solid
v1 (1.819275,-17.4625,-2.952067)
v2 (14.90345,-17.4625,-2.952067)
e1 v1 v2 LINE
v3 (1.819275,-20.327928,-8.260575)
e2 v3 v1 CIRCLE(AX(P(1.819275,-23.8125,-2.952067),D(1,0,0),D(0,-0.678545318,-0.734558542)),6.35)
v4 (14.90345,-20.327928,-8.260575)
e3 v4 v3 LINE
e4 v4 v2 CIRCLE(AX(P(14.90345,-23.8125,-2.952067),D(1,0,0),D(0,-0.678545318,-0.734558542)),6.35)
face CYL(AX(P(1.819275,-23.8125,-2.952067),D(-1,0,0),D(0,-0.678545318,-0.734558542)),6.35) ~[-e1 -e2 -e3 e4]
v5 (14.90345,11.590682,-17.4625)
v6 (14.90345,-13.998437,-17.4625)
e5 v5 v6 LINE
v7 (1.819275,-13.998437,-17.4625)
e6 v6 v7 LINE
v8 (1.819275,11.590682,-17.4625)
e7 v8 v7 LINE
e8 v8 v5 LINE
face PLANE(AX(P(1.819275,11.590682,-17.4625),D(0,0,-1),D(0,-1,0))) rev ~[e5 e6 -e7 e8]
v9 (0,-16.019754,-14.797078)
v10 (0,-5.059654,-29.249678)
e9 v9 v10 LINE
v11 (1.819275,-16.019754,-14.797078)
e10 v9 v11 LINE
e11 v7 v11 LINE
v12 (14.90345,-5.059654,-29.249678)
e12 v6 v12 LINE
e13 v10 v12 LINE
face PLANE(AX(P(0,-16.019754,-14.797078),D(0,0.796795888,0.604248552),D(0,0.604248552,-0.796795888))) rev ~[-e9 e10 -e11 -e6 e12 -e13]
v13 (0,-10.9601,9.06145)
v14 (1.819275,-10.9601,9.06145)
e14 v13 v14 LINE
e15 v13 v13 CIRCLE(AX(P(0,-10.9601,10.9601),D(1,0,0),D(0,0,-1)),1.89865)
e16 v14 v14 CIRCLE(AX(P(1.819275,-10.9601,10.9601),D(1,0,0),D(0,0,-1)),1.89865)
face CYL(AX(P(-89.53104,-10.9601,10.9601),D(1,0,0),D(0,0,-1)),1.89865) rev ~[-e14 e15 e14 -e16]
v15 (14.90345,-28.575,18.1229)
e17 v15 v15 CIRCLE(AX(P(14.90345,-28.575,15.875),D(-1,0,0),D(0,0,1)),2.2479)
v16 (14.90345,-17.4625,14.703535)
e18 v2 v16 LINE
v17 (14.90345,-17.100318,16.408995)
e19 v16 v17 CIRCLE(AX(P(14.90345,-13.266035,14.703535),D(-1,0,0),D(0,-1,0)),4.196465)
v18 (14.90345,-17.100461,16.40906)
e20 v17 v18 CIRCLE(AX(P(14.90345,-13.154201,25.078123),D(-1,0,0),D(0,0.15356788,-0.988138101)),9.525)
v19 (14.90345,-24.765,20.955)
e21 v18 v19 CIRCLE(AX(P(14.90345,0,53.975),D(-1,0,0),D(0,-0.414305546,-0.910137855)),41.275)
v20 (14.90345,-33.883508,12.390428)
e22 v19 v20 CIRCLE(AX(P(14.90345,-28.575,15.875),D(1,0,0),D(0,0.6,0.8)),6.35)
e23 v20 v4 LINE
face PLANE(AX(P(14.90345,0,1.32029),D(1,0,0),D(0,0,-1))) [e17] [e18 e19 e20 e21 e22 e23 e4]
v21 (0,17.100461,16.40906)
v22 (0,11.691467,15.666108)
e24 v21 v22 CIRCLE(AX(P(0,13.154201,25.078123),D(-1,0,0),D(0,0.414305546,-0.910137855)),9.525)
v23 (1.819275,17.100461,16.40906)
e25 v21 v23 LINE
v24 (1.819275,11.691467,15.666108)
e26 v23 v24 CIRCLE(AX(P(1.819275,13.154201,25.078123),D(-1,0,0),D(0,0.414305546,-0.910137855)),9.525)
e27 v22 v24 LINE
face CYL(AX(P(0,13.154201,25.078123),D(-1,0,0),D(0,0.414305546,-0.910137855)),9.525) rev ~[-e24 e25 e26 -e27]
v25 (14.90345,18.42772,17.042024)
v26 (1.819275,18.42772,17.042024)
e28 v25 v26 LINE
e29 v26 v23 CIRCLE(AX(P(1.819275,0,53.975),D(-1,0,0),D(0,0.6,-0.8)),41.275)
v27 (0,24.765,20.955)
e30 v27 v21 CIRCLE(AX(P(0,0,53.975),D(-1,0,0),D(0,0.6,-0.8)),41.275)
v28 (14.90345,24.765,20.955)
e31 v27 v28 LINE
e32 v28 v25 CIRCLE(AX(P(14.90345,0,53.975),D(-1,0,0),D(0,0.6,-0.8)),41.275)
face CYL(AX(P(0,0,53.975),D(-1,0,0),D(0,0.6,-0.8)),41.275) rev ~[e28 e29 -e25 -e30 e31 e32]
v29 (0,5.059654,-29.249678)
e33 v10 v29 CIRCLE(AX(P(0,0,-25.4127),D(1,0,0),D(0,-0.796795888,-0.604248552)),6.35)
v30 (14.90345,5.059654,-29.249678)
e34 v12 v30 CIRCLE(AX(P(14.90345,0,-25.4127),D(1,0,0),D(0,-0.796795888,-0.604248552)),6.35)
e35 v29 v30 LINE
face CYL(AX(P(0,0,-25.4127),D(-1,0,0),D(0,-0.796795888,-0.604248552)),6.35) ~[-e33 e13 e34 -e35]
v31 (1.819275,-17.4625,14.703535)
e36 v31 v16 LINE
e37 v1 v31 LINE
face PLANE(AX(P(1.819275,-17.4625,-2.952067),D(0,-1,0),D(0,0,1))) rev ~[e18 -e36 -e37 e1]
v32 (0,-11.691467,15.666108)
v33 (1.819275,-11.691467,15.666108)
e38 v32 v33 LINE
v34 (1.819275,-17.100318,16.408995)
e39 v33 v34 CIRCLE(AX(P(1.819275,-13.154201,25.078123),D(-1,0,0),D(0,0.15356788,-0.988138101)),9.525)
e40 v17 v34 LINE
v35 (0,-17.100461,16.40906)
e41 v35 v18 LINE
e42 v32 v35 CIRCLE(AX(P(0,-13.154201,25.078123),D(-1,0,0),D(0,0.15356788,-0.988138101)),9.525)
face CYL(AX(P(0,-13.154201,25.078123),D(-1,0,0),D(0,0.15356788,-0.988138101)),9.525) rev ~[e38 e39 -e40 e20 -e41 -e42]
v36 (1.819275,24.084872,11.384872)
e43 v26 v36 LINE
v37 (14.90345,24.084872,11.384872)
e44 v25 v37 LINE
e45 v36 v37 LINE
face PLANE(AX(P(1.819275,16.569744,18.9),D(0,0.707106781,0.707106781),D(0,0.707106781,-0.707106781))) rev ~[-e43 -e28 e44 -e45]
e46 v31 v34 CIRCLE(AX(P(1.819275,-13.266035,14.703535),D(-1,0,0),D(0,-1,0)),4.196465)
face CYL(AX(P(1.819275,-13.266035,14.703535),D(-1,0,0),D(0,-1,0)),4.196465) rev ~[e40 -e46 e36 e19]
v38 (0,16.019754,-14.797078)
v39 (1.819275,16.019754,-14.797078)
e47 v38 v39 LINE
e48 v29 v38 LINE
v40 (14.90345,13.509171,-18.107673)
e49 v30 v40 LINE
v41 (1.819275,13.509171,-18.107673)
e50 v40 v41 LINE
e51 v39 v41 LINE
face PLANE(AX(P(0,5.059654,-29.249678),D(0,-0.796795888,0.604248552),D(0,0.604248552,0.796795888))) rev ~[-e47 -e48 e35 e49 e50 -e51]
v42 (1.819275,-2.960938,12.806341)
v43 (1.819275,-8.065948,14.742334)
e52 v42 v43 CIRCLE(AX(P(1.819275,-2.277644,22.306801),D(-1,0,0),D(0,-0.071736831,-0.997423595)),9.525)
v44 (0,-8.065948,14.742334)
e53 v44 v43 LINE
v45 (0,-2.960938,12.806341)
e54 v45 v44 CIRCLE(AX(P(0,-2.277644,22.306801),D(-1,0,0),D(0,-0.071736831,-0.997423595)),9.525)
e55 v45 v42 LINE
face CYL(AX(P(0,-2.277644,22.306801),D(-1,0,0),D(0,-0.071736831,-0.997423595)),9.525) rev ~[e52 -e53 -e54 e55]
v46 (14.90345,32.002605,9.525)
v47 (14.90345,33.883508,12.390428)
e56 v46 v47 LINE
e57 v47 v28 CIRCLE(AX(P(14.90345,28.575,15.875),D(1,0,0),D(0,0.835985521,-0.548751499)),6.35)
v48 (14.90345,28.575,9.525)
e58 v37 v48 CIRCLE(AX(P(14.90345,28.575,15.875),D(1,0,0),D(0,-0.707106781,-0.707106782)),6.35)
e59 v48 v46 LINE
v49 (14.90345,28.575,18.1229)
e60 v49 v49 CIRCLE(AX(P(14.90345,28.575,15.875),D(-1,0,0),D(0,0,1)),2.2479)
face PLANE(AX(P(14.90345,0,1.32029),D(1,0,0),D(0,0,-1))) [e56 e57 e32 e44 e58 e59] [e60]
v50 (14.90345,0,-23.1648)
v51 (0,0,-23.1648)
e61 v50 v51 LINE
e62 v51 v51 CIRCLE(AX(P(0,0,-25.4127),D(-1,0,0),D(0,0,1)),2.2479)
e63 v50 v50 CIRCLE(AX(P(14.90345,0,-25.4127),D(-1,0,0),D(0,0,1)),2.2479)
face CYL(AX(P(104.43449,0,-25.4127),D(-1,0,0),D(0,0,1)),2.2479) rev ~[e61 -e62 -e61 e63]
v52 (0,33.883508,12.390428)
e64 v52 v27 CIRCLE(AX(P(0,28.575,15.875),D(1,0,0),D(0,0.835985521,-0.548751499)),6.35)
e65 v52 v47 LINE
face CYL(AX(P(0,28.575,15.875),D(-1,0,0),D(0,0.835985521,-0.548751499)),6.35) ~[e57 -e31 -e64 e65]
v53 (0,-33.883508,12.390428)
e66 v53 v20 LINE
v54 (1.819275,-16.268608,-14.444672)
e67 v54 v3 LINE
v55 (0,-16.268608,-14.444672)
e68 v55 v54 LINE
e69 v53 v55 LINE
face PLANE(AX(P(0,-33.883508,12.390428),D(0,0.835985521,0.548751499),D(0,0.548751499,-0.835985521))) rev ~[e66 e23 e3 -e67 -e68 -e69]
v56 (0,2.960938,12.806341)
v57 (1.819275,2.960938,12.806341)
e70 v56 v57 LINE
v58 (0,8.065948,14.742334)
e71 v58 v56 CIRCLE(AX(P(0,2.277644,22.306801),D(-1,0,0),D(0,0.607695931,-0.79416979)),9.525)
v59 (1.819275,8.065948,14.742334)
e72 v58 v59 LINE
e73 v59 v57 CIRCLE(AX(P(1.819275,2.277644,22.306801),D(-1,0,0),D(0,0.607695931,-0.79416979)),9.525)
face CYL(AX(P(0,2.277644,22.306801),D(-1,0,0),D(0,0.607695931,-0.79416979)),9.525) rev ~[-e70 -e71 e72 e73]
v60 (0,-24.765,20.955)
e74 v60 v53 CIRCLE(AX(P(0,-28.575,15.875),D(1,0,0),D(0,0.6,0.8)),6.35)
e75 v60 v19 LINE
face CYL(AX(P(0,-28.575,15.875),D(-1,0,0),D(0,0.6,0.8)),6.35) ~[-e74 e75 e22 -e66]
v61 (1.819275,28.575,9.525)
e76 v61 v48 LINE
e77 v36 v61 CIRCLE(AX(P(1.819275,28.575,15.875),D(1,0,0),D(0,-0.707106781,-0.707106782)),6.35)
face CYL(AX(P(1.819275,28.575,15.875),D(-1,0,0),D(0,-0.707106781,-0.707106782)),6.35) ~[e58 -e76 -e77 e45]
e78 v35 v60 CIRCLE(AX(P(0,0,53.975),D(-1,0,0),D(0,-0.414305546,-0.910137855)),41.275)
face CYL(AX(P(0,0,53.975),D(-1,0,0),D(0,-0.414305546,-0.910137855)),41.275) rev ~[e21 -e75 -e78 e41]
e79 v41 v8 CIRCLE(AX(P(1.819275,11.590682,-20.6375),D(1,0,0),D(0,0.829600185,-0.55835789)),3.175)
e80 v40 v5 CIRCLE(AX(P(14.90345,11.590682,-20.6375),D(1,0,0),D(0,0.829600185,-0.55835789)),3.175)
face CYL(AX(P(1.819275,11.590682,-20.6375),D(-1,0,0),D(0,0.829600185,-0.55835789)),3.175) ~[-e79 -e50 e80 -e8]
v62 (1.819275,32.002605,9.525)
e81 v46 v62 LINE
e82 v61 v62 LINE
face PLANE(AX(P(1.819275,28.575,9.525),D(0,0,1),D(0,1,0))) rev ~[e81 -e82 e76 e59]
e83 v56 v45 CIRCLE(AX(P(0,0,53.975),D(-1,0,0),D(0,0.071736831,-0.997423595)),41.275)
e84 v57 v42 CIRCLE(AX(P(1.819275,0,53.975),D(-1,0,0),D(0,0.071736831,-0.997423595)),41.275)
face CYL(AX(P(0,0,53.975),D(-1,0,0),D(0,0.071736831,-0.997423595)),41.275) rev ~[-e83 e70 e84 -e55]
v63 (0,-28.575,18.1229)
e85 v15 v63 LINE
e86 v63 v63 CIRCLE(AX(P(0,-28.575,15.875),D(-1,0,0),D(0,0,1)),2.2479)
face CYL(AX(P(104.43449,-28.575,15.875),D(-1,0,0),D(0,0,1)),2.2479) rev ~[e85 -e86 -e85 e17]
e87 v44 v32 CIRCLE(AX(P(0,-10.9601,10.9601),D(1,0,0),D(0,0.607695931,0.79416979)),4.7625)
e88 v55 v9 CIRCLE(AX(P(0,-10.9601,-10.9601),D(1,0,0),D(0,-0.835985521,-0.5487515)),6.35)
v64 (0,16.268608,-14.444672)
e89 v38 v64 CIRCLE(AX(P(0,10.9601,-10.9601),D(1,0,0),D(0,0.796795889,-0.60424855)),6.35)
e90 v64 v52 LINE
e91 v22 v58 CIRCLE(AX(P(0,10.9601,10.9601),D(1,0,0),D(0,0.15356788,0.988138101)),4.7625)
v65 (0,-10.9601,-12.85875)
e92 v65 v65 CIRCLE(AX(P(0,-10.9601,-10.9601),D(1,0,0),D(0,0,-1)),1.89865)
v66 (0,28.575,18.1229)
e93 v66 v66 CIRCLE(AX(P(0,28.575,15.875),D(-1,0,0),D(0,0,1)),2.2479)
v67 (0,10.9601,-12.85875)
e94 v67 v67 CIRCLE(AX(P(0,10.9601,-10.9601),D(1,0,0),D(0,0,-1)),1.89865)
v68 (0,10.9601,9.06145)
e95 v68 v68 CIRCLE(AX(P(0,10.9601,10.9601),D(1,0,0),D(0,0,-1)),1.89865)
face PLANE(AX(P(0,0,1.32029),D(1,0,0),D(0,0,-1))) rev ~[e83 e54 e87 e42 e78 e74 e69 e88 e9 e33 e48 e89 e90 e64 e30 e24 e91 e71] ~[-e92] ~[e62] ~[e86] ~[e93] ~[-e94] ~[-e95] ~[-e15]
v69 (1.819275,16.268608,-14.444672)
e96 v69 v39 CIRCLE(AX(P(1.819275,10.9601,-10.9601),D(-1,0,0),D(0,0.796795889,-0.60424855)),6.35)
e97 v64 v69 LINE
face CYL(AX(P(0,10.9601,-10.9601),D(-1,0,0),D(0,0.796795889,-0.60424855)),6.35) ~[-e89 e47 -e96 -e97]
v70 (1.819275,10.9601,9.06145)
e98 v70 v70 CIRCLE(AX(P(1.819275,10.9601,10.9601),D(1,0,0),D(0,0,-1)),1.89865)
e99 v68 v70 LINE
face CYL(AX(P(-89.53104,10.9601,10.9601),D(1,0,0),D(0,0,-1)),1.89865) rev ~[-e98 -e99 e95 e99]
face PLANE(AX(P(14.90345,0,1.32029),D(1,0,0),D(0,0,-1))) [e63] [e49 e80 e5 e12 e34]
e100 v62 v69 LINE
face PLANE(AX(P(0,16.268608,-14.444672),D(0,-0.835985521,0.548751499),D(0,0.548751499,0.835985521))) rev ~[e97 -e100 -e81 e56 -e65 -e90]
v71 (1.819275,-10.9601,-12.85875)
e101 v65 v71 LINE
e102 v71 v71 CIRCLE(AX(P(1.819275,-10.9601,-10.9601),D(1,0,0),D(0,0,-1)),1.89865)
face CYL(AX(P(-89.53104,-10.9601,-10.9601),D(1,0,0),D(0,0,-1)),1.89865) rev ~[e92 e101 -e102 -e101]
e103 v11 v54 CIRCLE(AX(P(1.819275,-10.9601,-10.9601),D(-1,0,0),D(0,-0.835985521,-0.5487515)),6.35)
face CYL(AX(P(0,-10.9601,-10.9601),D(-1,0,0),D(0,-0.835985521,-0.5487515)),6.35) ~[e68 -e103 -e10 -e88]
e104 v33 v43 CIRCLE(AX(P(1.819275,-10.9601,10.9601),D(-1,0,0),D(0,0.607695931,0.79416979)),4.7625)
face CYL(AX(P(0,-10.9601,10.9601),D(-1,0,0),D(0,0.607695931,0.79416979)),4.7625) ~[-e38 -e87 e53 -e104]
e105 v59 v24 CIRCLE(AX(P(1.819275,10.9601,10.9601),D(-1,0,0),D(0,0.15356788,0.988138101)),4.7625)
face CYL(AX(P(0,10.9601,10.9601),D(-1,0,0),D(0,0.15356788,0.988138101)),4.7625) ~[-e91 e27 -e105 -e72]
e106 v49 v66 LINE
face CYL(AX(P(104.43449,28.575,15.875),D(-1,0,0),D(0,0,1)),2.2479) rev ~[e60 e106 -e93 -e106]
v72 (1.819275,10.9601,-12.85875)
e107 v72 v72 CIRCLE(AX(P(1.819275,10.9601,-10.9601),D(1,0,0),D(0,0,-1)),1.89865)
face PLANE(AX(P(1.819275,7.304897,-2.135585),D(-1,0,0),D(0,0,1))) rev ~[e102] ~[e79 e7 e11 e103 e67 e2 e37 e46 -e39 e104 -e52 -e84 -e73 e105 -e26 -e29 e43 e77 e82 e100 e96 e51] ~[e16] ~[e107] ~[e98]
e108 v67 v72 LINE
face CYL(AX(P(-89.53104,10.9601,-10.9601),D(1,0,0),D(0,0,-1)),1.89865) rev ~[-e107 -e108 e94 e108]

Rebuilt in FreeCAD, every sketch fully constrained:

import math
import FreeCAD as App
import Part
import Sketcher

V = App.Vector
Q = App.Units.Quantity

doc = App.newDocument("Part")
params = doc.addObject("Spreadsheet::Sheet", "Params")
for row, (alias, value) in enumerate([
    ("sketch1_radius", "0.25 in"),
    ("sketch1_radius2", "1.625 in"),
    ("sketch1_radius3", "0.375 in"),
    ("sketch1_radius4", "0.1875 in"),
    ("pad1_length", "14.90345 mm"),
    ("sketch2_diameter", "0.177 in"),
    ("hole_diameter", "0.177 in"),
    ("sketch3_radius", "0.25 in"),
    ("sketch3_radius2", "0.125 in"),
    ("sketch3_height", "1.0625 in"),
    ("pocket1_length", "13.084175 mm"),
    ("hole2_diameter", "0.1495 in"),
], start=1):
    params.set(f"A{row}", alias)
    params.set(f"B{row}", "=" + value)
    params.setAlias(f"B{row}", alias)

body = doc.addObject("PartDesign::Body", "Body")

# Sketch on YZ plane
sketch1 = body.newObject("Sketcher::SketchObject", "Sketch")
sketch1.AttachmentSupport = (doc.getObject("YZ_Plane"), [""])
sketch1.MapMode = "FlatFace"
sketch1.addGeometry([
    Part.LineSegment(V(-33.88, 12.39, 0), V(-16.27, -14.44, 0)),  # 0
    Part.ArcOfCircle(Part.Circle(V(-10.96, -10.96, 0), V(0, 0, 1), 6.35), math.radians(-146.72), math.radians(-142.83)),  # 1
    Part.LineSegment(V(-16.02, -14.8, 0), V(-5.06, -29.25, 0)),  # 2
    Part.ArcOfCircle(Part.Circle(V(0, -25.41, 0), V(0, 0, 1), 6.35), math.radians(-143), math.radians(-37)),  # 3
    Part.LineSegment(V(5.06, -29.25, 0), V(16.02, -14.8, 0)),  # 4
    Part.ArcOfCircle(Part.Circle(V(10.96, -10.96, 0), V(0, 0, 1), 6.35), math.radians(-37.17), math.radians(-33.28)),  # 5
    Part.LineSegment(V(16.27, -14.44, 0), V(33.88, 12.39, 0)),  # 6
    Part.ArcOfCircle(Part.Circle(V(28.57, 15.88, 0), V(0, 0, 1), 6.35), math.radians(-33), math.radians(127)),  # 7
    Part.ArcOfCircle(Part.Circle(V(0, 53.98, 0), V(0, 0, 1), 41.28), math.radians(-65.52), math.radians(-53.13)),  # 8
    Part.ArcOfCircle(Part.Circle(V(13.15, 25.08, 0), V(0, 0, 1), 9.53), math.radians(-99), math.radians(-66)),  # 9
    Part.ArcOfCircle(Part.Circle(V(10.96, 10.96, 0), V(0, 0, 1), 4.76), math.radians(81), math.radians(127)),  # 10
    Part.ArcOfCircle(Part.Circle(V(2.28, 22.31, 0), V(0, 0, 1), 9.53), math.radians(-86), math.radians(-53)),  # 11
    Part.ArcOfCircle(Part.Circle(V(0, 53.98, 0), V(0, 0, 1), 41.28), math.radians(-94.11), math.radians(-85.89)),  # 12
    Part.ArcOfCircle(Part.Circle(V(-2.28, 22.31, 0), V(0, 0, 1), 9.53), math.radians(-127), math.radians(-94)),  # 13
    Part.ArcOfCircle(Part.Circle(V(-10.96, 10.96, 0), V(0, 0, 1), 4.76), math.radians(53), math.radians(99)),  # 14
    Part.ArcOfCircle(Part.Circle(V(-13.15, 25.08, 0), V(0, 0, 1), 9.53), math.radians(-114), math.radians(-81)),  # 15
    Part.ArcOfCircle(Part.Circle(V(0, 53.98, 0), V(0, 0, 1), 41.28), math.radians(-126.87), math.radians(-114.48)),  # 16
    Part.ArcOfCircle(Part.Circle(V(-28.57, 15.88, 0), V(0, 0, 1), 6.35), math.radians(53), math.radians(213)),  # 17
], False)
sketch1.addConstraint([
    Sketcher.Constraint("Tangent", 0, 2, 1, 1),
    Sketcher.Constraint("Tangent", 1, 2, 2, 1),
    Sketcher.Constraint("Tangent", 2, 2, 3, 1),
    Sketcher.Constraint("Tangent", 3, 2, 4, 1),
    Sketcher.Constraint("Tangent", 4, 2, 5, 1),
    Sketcher.Constraint("Tangent", 5, 2, 6, 1),
    Sketcher.Constraint("Tangent", 6, 2, 7, 1),
    Sketcher.Constraint("Tangent", 7, 2, 8, 2),
    Sketcher.Constraint("Tangent", 8, 1, 9, 2),
    Sketcher.Constraint("Tangent", 9, 1, 10, 1),
    Sketcher.Constraint("Tangent", 10, 2, 11, 2),
    Sketcher.Constraint("Tangent", 11, 1, 12, 2),
    Sketcher.Constraint("Tangent", 12, 1, 13, 2),
    Sketcher.Constraint("Tangent", 13, 1, 14, 1),
    Sketcher.Constraint("Tangent", 14, 2, 15, 2),
    Sketcher.Constraint("Tangent", 15, 1, 16, 2),
    Sketcher.Constraint("Tangent", 16, 1, 17, 1),
    Sketcher.Constraint("Tangent", 17, 2, 0, 1),
    Sketcher.Constraint("Coincident", 12, 3, 8, 3),
    Sketcher.Constraint("Coincident", 16, 3, 8, 3),
    Sketcher.Constraint("Equal", 1, 3),
    Sketcher.Constraint("Equal", 3, 5),
    Sketcher.Constraint("Equal", 5, 7),
    Sketcher.Constraint("Equal", 9, 11),
    Sketcher.Constraint("Equal", 8, 12),
    Sketcher.Constraint("Equal", 11, 13),
    Sketcher.Constraint("Equal", 10, 14),
    Sketcher.Constraint("Equal", 13, 15),
    Sketcher.Constraint("Equal", 12, 16),
    Sketcher.Constraint("Equal", 7, 17),
    Sketcher.Constraint("Symmetric", 1, 3, 10, 3, -1, 1),
    Sketcher.Constraint("Symmetric", 5, 3, 14, 3, -1, 1),
    Sketcher.Constraint("Symmetric", 1, 3, 5, 3, -2),
    Sketcher.Constraint("Symmetric", 7, 3, 17, 3, -2),
    Sketcher.Constraint("PointOnObject", 3, 3, -2),
    Sketcher.Constraint("Radius", 1, Q("0.25 in")),
    Sketcher.Constraint("Radius", 8, Q("1.625 in")),
    Sketcher.Constraint("Radius", 9, Q("0.375 in")),
    Sketcher.Constraint("Radius", 10, Q("0.1875 in")),
    Sketcher.Constraint("DistanceY", 7, 3, 8, 3, Q("1.5 in")),
    Sketcher.Constraint("DistanceY", -1, 1, 7, 3, Q("0.625 in")),
    Sketcher.Constraint("DistanceY", 3, 3, 1, 3, Q("0.569 in")),
    Sketcher.Constraint("DistanceX", 1, 3, 5, 3, Q("0.863 in")),
    Sketcher.Constraint("DistanceY", 5, 3, 10, 3, Q("0.863 in")),
])
sketch1.setExpression("Constraints[35]", "Params.sketch1_radius")
sketch1.setExpression("Constraints[36]", "Params.sketch1_radius2")
sketch1.setExpression("Constraints[37]", "Params.sketch1_radius3")
sketch1.setExpression("Constraints[38]", "Params.sketch1_radius4")
pad1 = body.newObject("PartDesign::Pad", "Pad")
pad1.Profile = sketch1
pad1.setExpression("Length", "Params.pad1_length")

# Sketch on YZ plane
sketch2 = body.newObject("Sketcher::SketchObject", "Sketch001")
sketch2.AttachmentSupport = (doc.getObject("YZ_Plane"), [""])
sketch2.MapMode = "FlatFace"
sketch2.AttachmentOffset = App.Placement(V(0, 0, 14.90345), App.Rotation())
sketch2.addGeometry([
    Part.Circle(V(-28.6, 15.9, 0), V(0, 0, 1), 2.2),
    Part.Circle(V(28.6, 15.9, 0), V(0, 0, 1), 2.2),
    Part.Circle(V(0, -25.4, 0), V(0, 0, 1), 2.2),
], False)
sketch2.addConstraint([
    Sketcher.Constraint("Equal", 0, 1),
    Sketcher.Constraint("Equal", 1, 2),
    Sketcher.Constraint("Symmetric", 0, 3, 1, 3, -2),
    Sketcher.Constraint("PointOnObject", 2, 3, -2),
    Sketcher.Constraint("Diameter", 0, Q("0.177 in")),
    Sketcher.Constraint("DistanceX", 0, 3, 1, 3, Q("2.25 in")),
    Sketcher.Constraint("DistanceY", -1, 1, 0, 3, Q("0.625 in")),
    Sketcher.Constraint("DistanceY", 2, 3, -1, 1, Q("1.0005 in")),
])
sketch2.setExpression("Constraints[4]", "Params.sketch2_diameter")
doc.recompute()
hole = body.newObject("PartDesign::Hole", "Hole")
hole.Profile = sketch2
hole.ThreadType = "None"
hole.setExpression("Diameter", "Params.hole_diameter")
hole.DepthType = "ThroughAll"

# Sketch on YZ plane
sketch3 = body.newObject("Sketcher::SketchObject", "Sketch002")
sketch3.AttachmentSupport = (doc.getObject("YZ_Plane"), [""])
sketch3.MapMode = "FlatFace"
sketch3.AttachmentOffset = App.Placement(V(0, 0, 1.819275), App.Rotation())
sketch3.addGeometry([
    Part.LineSegment(V(-17.5, 14.7, 0), V(-17.5, -3, 0)),  # 0
    Part.ArcOfCircle(Part.Circle(V(-23.8, -3, 0), V(0, 0, 1), 6.3), math.radians(-133), math.radians(0)),  # 1
    Part.LineSegment(V(-28.1, -7.6, 0), V(-17.5, -17.5, 0)),  # 2
    Part.LineSegment(V(-17.5, -17.5, 0), V(11.6, -17.5, 0)),  # 3
    Part.ArcOfCircle(Part.Circle(V(11.6, -20.6, 0), V(0, 0, 1), 3.2), math.radians(-34), math.radians(90)),  # 4
    Part.LineSegment(V(14.2, -22.4, 0), V(20.9, -17.5, 0)),  # 5
    Part.LineSegment(V(20.9, -17.5, 0), V(39.1, -17.5, 0)),  # 6
    Part.LineSegment(V(39.1, -17.5, 0), V(39.1, 9.5, 0)),  # 7
    Part.LineSegment(V(39.1, 9.5, 0), V(28.6, 9.5, 0)),  # 8
    Part.ArcOfCircle(Part.Circle(V(28.6, 15.9, 0), V(0, 0, 1), 6.4), math.radians(-135), math.radians(-90)),  # 9
    Part.LineSegment(V(24.1, 11.4, 0), V(16.6, 18.9, 0)),  # 10
    Part.LineSegment(V(16.6, 18.9, 0), V(-13.3, 18.9, 0)),  # 11
    Part.ArcOfCircle(Part.Circle(V(-13.3, 14.7, 0), V(0, 0, 1), 4.2), math.radians(90), math.radians(180)),  # 12
], False)
sketch3.addConstraint([
    Sketcher.Constraint("Tangent", 0, 2, 1, 2),
    Sketcher.Constraint("Tangent", 1, 1, 2, 1),
    Sketcher.Constraint("Coincident", 2, 2, 3, 1),
    Sketcher.Constraint("Tangent", 3, 2, 4, 2),
    Sketcher.Constraint("Coincident", 4, 1, 5, 1),
    Sketcher.Constraint("Coincident", 5, 2, 6, 1),
    Sketcher.Constraint("Coincident", 6, 2, 7, 1),
    Sketcher.Constraint("Coincident", 7, 2, 8, 1),
    Sketcher.Constraint("Tangent", 8, 2, 9, 2),
    Sketcher.Constraint("Tangent", 9, 1, 10, 1),
    Sketcher.Constraint("Coincident", 10, 2, 11, 1),
    Sketcher.Constraint("Tangent", 11, 2, 12, 1),
    Sketcher.Constraint("Tangent", 12, 2, 0, 1),
    Sketcher.Constraint("Vertical", 0),
    Sketcher.Constraint("Horizontal", 3),
    Sketcher.Constraint("Horizontal", 6),
    Sketcher.Constraint("Vertical", 7),
    Sketcher.Constraint("Horizontal", 8),
    Sketcher.Constraint("Horizontal", 11),
    Sketcher.Constraint("Equal", 1, 9),
    Sketcher.Constraint("Horizontal", 3, 2, 5, 2),
    Sketcher.Constraint("Vertical", 0, 2, 2, 2),
    Sketcher.Constraint("Radius", 1, Q("0.25 in")),
    Sketcher.Constraint("Angle", 10, Q("135 deg")),
    Sketcher.Constraint("Radius", 4, Q("0.125 in")),
    Sketcher.Constraint("DistanceY", 7, 1, 7, 2, Q("1.0625 in")),
    Sketcher.Constraint("DistanceX", 1, 3, -1, 1, Q("0.9375 in")),
    Sketcher.Constraint("DistanceY", 4, 3, -1, 1, Q("0.8125 in")),
    Sketcher.Constraint("DistanceX", -1, 1, 9, 3, Q("1.125 in")),
    Sketcher.Constraint("DistanceX", 8, 2, 8, 1, 10.5107),
    Sketcher.Constraint("Radius", 12, 4.196465),
    Sketcher.Constraint("DistanceX", 4, 3, 4, 1, Q("0.1037 in")),
    Sketcher.Constraint("DistanceX", 3, 1, 3, 2, 29.053182),
    Sketcher.Constraint("DistanceX", 11, 2, 11, 1, 29.835779),
    Sketcher.Constraint("DistanceX", 6, 1, 6, 2, 18.179325),
    Sketcher.Constraint("DistanceY", 0, 2, 0, 1, 17.655602),
])
sketch3.setExpression("Constraints[22]", "Params.sketch3_radius")
sketch3.setExpression("Constraints[24]", "Params.sketch3_radius2")
sketch3.setExpression("Constraints[25]", "Params.sketch3_height")
pocket1 = body.newObject("PartDesign::Pocket", "Pocket")
pocket1.Profile = sketch3
pocket1.setExpression("Length", "Params.pocket1_length")
pocket1.Reversed = True

# Sketch on YZ plane
sketch4 = body.newObject("Sketcher::SketchObject", "Sketch003")
sketch4.AttachmentSupport = (doc.getObject("YZ_Plane"), [""])
sketch4.MapMode = "FlatFace"
sketch4.addGeometry([
    Part.Circle(V(-11, 11, 0), V(0, 0, 1), 1.9),
    Part.Circle(V(-11, -11, 0), V(0, 0, 1), 1.9),
    Part.Circle(V(11, -11, 0), V(0, 0, 1), 1.9),
    Part.Circle(V(11, 11, 0), V(0, 0, 1), 1.9),
], False)
sketch4.addConstraint([
    Sketcher.Constraint("Equal", 0, 1),
    Sketcher.Constraint("Equal", 1, 2),
    Sketcher.Constraint("Equal", 2, 3),
    Sketcher.Constraint("Symmetric", 0, 3, 2, 3, -1, 1),
    Sketcher.Constraint("Symmetric", 1, 3, 3, 3, -1, 1),
    Sketcher.Constraint("Symmetric", 1, 3, 2, 3, -2),
    Sketcher.Constraint("Diameter", 0, Q("0.1495 in")),
    Sketcher.Constraint("DistanceY", 1, 3, 0, 3, Q("0.863 in")),
    Sketcher.Constraint("DistanceX", 1, 3, 2, 3, Q("0.863 in")),
])
doc.recompute()
hole2 = body.newObject("PartDesign::Hole", "Hole001")
hole2.Profile = sketch4
hole2.ThreadType = "None"
hole2.setExpression("Diameter", "Params.hole2_diameter")
hole2.DepthType = "ThroughAll"
hole2.Reversed = True

doc.recompute()
